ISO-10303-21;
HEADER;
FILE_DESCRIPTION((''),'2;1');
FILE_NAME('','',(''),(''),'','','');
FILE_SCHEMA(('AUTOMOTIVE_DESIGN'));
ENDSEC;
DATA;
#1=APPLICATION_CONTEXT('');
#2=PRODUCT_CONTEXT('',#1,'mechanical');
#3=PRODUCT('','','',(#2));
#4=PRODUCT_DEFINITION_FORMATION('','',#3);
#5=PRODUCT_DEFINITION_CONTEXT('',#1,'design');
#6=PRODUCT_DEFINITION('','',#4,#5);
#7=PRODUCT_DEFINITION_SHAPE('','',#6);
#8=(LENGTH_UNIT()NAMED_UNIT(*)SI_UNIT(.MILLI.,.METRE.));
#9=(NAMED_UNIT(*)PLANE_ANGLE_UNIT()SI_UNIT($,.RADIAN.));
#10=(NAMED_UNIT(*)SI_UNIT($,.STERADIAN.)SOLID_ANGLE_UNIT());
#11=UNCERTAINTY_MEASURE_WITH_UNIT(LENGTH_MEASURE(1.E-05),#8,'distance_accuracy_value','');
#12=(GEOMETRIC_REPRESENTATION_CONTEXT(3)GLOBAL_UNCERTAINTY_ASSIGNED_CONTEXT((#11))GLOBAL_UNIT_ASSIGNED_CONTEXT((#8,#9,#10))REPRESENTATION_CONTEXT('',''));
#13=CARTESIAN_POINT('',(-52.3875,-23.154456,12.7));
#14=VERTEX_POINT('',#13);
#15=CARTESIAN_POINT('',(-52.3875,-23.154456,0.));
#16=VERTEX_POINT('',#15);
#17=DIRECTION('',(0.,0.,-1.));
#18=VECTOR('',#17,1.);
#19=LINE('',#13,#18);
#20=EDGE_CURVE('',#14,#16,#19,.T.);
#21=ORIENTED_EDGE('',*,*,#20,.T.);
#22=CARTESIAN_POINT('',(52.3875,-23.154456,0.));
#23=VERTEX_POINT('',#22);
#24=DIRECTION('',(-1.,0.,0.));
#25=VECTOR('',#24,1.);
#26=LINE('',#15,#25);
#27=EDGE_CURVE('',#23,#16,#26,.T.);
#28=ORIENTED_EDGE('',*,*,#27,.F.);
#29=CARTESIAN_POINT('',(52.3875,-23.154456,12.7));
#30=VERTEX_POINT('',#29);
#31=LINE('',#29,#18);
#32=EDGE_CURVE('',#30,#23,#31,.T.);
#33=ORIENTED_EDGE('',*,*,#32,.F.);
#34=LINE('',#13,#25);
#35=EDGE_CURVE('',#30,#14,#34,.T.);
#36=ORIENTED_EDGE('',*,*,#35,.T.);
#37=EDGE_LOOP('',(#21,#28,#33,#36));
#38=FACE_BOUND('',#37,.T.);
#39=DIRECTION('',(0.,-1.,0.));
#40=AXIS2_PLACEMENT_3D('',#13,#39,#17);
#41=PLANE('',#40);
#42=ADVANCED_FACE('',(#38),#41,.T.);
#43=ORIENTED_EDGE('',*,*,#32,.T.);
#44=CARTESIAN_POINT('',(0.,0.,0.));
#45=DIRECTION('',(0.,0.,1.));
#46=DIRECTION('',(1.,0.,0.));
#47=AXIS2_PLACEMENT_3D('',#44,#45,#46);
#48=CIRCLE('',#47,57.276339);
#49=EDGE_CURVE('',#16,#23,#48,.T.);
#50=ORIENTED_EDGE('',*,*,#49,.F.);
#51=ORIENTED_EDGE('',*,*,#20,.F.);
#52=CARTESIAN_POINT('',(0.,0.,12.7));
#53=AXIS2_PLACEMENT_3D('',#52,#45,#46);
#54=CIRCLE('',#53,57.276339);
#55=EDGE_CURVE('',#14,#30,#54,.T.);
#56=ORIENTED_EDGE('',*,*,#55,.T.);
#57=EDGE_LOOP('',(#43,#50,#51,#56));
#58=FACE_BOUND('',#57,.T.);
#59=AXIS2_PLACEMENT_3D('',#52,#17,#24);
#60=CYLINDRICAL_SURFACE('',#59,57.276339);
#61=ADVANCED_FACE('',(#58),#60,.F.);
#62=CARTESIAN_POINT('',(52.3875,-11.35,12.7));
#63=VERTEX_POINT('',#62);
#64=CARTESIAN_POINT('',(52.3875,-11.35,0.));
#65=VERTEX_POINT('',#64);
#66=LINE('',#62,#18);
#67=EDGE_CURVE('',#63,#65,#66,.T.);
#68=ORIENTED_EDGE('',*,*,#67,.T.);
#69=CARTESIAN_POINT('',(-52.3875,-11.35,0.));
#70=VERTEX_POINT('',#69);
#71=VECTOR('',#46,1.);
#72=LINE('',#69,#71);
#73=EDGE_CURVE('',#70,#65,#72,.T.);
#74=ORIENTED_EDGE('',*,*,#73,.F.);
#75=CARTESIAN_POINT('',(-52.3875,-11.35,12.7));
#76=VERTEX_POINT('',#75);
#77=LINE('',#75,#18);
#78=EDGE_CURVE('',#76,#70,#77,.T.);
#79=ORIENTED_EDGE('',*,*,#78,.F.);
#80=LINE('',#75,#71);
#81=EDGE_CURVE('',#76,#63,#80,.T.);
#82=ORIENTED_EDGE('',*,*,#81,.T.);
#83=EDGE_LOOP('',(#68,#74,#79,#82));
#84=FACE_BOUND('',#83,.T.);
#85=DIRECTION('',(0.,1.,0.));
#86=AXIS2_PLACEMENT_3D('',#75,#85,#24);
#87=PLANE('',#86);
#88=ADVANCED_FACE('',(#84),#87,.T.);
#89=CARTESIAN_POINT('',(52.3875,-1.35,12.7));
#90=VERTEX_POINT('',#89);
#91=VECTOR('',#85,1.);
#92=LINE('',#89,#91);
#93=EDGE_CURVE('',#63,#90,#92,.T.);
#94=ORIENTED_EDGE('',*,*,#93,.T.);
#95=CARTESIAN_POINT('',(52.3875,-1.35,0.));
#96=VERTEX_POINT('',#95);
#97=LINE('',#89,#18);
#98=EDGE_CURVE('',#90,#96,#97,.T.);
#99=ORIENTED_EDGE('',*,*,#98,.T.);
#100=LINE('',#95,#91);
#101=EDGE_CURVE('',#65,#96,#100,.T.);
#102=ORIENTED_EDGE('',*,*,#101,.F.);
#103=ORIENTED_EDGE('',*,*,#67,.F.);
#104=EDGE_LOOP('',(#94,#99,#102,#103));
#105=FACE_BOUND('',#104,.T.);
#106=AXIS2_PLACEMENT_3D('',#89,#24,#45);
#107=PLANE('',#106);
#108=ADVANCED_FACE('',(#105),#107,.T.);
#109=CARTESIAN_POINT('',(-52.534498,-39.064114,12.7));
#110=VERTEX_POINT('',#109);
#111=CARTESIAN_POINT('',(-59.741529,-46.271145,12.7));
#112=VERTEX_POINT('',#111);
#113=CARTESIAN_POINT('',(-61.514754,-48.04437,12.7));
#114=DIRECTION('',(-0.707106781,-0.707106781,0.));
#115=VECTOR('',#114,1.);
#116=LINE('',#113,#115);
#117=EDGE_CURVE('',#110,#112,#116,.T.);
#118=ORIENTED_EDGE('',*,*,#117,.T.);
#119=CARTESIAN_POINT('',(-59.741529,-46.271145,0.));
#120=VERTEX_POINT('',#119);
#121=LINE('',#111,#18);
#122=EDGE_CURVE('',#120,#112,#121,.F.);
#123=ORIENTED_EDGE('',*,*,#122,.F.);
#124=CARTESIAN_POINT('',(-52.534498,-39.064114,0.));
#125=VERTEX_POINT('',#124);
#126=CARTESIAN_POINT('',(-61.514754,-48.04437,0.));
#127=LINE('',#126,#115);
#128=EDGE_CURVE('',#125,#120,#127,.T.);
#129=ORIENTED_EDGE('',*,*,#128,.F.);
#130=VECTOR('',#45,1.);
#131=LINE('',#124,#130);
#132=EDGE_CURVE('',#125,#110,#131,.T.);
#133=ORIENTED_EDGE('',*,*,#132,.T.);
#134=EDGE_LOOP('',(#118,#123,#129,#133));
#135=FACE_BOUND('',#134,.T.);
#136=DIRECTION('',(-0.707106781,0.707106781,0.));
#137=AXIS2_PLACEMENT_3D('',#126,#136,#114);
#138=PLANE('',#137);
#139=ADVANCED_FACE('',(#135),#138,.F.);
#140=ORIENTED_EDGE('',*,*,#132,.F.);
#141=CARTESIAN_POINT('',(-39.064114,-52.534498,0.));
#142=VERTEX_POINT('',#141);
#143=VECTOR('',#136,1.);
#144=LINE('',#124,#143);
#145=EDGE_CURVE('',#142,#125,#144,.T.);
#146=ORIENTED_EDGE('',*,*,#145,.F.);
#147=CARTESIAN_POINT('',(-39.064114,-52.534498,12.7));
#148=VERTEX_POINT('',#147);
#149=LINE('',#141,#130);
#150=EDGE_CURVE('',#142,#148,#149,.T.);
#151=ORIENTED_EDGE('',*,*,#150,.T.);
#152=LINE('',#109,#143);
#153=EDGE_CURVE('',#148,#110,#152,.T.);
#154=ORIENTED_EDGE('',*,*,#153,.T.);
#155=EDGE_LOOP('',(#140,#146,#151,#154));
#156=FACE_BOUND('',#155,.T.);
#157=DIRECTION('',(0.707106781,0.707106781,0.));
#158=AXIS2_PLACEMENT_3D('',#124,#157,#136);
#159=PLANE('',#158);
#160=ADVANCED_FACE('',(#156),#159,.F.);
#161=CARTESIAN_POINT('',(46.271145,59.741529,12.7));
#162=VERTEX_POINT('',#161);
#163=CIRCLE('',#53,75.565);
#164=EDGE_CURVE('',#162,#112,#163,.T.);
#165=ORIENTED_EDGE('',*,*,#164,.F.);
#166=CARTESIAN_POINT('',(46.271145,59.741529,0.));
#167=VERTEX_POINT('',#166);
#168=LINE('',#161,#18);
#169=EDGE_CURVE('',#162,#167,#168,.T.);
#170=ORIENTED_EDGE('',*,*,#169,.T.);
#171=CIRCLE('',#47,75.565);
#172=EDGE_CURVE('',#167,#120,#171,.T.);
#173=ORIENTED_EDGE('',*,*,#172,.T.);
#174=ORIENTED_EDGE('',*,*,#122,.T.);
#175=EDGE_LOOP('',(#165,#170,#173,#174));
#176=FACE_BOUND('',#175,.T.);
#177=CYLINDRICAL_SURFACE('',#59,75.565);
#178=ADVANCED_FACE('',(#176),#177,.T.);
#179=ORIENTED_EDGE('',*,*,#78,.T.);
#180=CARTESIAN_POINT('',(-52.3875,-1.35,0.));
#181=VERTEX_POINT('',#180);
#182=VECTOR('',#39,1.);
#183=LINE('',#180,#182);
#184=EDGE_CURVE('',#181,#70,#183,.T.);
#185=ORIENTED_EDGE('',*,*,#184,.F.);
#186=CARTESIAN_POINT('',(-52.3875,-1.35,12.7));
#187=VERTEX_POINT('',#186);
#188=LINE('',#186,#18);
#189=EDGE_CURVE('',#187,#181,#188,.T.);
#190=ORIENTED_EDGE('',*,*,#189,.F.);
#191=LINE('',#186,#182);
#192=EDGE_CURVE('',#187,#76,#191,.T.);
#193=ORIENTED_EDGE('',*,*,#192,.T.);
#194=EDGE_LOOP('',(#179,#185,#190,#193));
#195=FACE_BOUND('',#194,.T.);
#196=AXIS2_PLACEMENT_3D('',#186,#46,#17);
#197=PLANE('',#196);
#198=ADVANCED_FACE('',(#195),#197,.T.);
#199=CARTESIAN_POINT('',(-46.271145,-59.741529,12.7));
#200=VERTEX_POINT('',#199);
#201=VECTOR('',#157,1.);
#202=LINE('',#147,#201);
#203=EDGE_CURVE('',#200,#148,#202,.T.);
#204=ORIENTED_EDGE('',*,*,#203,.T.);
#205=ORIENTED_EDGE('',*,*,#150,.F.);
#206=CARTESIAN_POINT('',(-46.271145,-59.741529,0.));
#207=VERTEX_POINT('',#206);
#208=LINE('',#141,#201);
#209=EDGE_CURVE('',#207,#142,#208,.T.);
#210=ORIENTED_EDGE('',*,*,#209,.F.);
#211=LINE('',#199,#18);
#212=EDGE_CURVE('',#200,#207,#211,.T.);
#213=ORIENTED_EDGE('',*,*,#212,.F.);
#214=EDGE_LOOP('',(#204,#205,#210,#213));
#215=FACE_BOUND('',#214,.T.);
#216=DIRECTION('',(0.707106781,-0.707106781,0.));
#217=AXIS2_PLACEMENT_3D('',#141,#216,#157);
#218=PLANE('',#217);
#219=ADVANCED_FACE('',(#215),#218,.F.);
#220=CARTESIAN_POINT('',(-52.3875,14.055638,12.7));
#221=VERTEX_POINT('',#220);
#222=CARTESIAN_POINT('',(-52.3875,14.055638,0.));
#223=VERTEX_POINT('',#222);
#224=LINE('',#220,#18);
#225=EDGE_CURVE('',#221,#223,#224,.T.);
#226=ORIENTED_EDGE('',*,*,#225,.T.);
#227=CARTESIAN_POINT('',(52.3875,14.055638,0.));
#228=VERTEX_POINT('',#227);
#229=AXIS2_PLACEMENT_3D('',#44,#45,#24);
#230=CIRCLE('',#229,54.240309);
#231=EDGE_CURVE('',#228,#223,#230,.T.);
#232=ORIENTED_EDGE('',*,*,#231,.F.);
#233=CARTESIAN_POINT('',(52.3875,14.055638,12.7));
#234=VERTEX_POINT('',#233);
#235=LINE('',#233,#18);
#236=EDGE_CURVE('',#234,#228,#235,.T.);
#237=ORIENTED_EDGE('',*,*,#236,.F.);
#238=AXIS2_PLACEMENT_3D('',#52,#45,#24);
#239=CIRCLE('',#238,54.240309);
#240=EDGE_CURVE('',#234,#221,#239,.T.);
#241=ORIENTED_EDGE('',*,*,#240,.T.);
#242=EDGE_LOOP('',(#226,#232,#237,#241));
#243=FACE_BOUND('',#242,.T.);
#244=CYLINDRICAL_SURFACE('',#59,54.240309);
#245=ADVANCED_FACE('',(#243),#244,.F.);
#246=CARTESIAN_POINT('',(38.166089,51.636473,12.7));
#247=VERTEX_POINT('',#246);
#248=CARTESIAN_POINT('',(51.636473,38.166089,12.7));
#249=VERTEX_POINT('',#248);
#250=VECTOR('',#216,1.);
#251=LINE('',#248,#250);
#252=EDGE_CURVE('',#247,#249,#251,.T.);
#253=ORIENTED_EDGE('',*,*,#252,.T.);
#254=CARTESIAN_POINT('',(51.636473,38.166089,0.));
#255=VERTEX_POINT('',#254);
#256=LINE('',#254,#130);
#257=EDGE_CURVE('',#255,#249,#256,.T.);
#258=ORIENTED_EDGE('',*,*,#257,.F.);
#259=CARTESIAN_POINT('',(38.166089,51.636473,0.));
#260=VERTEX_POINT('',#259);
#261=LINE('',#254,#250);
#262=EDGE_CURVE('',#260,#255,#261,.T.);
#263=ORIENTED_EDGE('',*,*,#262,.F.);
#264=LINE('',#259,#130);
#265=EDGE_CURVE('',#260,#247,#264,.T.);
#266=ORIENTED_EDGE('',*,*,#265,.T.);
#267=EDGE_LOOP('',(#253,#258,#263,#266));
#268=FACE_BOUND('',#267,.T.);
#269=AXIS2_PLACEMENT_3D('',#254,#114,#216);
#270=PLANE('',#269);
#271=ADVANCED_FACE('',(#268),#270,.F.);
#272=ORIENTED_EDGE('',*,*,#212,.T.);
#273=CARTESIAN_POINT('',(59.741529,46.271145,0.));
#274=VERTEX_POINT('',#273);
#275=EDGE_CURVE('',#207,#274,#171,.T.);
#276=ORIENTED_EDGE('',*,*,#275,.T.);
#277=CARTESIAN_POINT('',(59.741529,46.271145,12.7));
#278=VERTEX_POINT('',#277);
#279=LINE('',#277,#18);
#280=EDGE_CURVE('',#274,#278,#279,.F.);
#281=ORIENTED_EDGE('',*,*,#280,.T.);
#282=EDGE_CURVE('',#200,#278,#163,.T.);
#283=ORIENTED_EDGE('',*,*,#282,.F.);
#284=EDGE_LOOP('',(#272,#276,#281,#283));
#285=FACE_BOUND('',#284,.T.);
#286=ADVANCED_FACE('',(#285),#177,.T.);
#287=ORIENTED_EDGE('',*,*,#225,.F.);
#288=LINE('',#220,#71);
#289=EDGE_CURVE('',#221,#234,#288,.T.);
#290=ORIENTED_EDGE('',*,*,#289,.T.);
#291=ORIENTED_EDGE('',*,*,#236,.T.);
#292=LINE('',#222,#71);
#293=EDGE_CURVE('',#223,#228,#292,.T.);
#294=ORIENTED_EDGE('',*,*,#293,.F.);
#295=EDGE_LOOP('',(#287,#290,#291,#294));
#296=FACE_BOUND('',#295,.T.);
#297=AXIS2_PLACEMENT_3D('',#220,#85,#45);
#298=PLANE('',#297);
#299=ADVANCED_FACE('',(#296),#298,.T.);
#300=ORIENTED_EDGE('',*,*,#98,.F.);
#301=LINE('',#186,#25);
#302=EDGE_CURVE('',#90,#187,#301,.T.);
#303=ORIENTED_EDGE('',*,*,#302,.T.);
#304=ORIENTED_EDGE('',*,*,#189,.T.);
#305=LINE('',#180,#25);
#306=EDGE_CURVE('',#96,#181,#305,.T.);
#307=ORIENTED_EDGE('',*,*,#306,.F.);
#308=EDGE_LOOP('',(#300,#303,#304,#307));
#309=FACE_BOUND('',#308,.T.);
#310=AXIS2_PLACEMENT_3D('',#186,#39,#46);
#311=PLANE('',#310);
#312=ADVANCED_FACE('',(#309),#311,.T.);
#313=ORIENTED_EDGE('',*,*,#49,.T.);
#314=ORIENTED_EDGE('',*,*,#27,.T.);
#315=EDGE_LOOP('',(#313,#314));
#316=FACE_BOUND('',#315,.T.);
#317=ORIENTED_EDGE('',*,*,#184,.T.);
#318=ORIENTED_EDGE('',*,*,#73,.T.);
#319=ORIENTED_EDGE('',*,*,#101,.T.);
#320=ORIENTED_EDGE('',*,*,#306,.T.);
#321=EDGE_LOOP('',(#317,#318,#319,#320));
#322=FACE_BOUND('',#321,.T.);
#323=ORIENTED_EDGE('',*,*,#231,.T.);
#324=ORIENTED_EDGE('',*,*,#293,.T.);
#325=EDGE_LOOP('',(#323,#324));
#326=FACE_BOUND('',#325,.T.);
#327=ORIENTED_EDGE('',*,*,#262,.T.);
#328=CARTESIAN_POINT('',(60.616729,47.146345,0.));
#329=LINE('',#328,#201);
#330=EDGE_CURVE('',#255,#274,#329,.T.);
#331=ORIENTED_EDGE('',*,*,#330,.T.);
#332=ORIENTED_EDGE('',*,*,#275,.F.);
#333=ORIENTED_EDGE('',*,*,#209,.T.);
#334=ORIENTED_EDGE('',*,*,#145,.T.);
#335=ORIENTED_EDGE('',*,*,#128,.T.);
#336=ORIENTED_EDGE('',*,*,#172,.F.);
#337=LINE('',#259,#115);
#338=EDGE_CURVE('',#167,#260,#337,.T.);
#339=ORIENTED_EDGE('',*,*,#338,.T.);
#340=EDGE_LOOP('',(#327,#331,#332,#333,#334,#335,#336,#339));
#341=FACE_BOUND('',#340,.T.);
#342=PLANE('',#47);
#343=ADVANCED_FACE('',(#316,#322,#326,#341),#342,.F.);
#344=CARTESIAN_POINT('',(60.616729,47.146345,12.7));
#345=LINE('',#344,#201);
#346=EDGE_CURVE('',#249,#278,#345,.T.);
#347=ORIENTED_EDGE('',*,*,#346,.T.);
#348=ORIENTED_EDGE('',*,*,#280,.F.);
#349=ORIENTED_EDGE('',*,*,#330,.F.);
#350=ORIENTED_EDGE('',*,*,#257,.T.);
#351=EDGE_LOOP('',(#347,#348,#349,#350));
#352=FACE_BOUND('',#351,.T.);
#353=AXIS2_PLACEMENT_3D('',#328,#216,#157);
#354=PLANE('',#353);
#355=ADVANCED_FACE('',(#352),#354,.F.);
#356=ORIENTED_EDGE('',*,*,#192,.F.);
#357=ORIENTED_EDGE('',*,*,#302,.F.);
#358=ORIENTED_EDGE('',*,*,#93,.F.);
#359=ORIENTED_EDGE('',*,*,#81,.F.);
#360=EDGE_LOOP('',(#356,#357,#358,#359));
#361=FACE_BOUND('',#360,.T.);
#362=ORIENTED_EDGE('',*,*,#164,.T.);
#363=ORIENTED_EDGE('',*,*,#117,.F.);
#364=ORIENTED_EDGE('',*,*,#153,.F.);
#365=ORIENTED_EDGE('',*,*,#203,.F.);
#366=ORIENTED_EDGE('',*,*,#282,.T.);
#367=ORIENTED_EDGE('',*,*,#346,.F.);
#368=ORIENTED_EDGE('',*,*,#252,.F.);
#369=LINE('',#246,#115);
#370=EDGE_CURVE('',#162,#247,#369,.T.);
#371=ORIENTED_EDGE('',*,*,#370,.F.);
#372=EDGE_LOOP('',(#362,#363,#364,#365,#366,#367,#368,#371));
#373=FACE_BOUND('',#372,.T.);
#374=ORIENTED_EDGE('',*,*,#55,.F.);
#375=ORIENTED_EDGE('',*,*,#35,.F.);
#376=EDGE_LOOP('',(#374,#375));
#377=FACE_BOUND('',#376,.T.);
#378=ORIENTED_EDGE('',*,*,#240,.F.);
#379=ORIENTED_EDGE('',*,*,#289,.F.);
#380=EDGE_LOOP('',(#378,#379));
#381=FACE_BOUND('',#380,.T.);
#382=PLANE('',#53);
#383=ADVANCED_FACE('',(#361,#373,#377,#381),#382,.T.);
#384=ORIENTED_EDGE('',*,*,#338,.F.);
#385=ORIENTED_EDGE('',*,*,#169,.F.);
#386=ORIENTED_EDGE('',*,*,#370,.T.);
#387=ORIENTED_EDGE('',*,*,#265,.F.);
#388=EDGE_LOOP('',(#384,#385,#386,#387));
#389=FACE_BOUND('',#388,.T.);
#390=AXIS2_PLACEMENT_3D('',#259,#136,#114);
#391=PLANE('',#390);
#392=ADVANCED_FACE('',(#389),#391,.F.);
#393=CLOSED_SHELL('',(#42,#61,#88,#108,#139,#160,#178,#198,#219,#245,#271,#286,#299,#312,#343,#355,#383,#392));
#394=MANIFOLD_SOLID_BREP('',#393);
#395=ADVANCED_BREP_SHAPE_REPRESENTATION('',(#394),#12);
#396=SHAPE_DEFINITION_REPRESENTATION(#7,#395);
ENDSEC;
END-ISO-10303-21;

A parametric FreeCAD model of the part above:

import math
import FreeCAD as App
import Part
import Sketcher
Q = App.Units.Quantity


def add_polygon(sketch, points):
    """Adds a closed chain of lines whose ends are joined by coincident constraints."""
    first, n = sketch.GeometryCount, len(points)
    for a, b in zip(points, points[1:] + points[:1]):
        sketch.addGeometry(Part.LineSegment(App.Vector(*a, 0), App.Vector(*b, 0)), False)
    for i in range(n):
        sketch.addConstraint(Sketcher.Constraint("Coincident", first + i, 2, first + (i + 1) % n, 1))

doc = App.newDocument("Part")
params = doc.addObject("Spreadsheet::Sheet", "Params")
for row, (alias, value) in enumerate([
    ("sketch1_diameter", "5.95 in"),
    ("sketch1_width", "4.125 in"),
    ("pad1_length", "0.5 in"),
    ("sketch2_length", "0.5 in"),
    ("sketch2_length2", "0.75 in"),
    ("pocket1_length", "0.5 in"),
], start=1):
    params.set(f"A{row}", alias)
    params.set(f"B{row}", "=" + value)
    params.setAlias(f"B{row}", alias)

body = doc.addObject("PartDesign::Body", "Body")

# Sketch on XY plane
sketch1 = doc.addObject("Sketcher::SketchObject", "Sketch")
body.addObject(sketch1)
sketch1.AttachmentSupport = (doc.XY_Plane, [""])
sketch1.MapMode = "FlatFace"
sketch1.addGeometry(Part.Circle(App.Vector(0, 0, 0), App.Vector(0, 0, 1), 76), False)  # 0
sketch1.addGeometry(Part.ArcOfCircle(Part.Circle(App.Vector(0, 0, 0), App.Vector(0, 0, 1), 57), math.radians(-156), math.radians(-24)), False)  # 1
sketch1.addGeometry(Part.LineSegment(App.Vector(-52, -23, 0), App.Vector(52, -23, 0)), False)  # 2
add_polygon(sketch1, [(52, -11), (-52, -11), (-52, -1), (52, -1)])  # lines 3-6
sketch1.addGeometry(Part.LineSegment(App.Vector(52, 14, 0), App.Vector(-52, 14, 0)), False)  # 7
sketch1.addGeometry(Part.ArcOfCircle(Part.Circle(App.Vector(0, 0, 0), App.Vector(0, 0, 1), 54), math.radians(15), math.radians(165)), False)  # 8
sketch1.addConstraint(Sketcher.Constraint("Coincident", 1, 1, 2, 1))
sketch1.addConstraint(Sketcher.Constraint("Coincident", 2, 2, 1, 2))
sketch1.addConstraint(Sketcher.Constraint("Coincident", 7, 1, 8, 1))
sketch1.addConstraint(Sketcher.Constraint("Coincident", 8, 2, 7, 2))
sketch1.addConstraint(Sketcher.Constraint("Horizontal", 2))
sketch1.addConstraint(Sketcher.Constraint("Horizontal", 3))
sketch1.addConstraint(Sketcher.Constraint("Vertical", 4))
sketch1.addConstraint(Sketcher.Constraint("Horizontal", 5))
sketch1.addConstraint(Sketcher.Constraint("Vertical", 6))
sketch1.addConstraint(Sketcher.Constraint("Horizontal", 7))
sketch1.addConstraint(Sketcher.Constraint("Coincident", 0, 3, -1, 1))
sketch1.addConstraint(Sketcher.Constraint("Coincident", 1, 3, -1, 1))
sketch1.addConstraint(Sketcher.Constraint("Coincident", 8, 3, -1, 1))
sketch1.addConstraint(Sketcher.Constraint("Vertical", 1, 1, 3, 2))
sketch1.addConstraint(Sketcher.Constraint("Vertical", 2, 2, 5, 2))
sketch1.addConstraint(Sketcher.Constraint("Vertical", 6, 2, 7, 1))
sketch1.addConstraint(Sketcher.Constraint("Diameter", 0, Q("5.95 in")))
sketch1.addConstraint(Sketcher.Constraint("DistanceX", 2, 1, 2, 2, Q("4.125 in")))
sketch1.addConstraint(Sketcher.Constraint("Radius", 1, 57.276339))
sketch1.addConstraint(Sketcher.Constraint("Radius", 8, 54.240309))
sketch1.addConstraint(Sketcher.Constraint("DistanceY", 4, 1, 4, 2, 10.0))
sketch1.addConstraint(Sketcher.Constraint("DistanceY", 3, 2, -1, 1, 11.35))
sketch1.setExpression("Constraints[20]", "Params.sketch1_diameter")
sketch1.setExpression("Constraints[21]", "Params.sketch1_width")
pad1 = doc.addObject("PartDesign::Pad", "Pad")
body.addObject(pad1)
pad1.Profile = sketch1
pad1.setExpression("Length", "Params.pad1_length")

# Sketch on XY plane
sketch2 = doc.addObject("Sketcher::SketchObject", "Sketch001")
body.addObject(sketch2)
sketch2.AttachmentSupport = (doc.XY_Plane, [""])
sketch2.MapMode = "FlatFace"
sketch2.AttachmentOffset = App.Placement(App.Vector(0, 0, 0.5 * 25.4), App.Rotation())
add_polygon(sketch2, [(61, 47), (47, 61), (38, 52), (52, 38)])  # lines 0-3
add_polygon(sketch2, [(-39, -53), (-53, -39), (-62, -48), (-48, -62)])  # lines 4-7
sketch2.addConstraint(Sketcher.Constraint("Perpendicular", 0, 1))
sketch2.addConstraint(Sketcher.Constraint("Perpendicular", 1, 2))
sketch2.addConstraint(Sketcher.Constraint("Perpendicular", 2, 3))
sketch2.addConstraint(Sketcher.Constraint("Perpendicular", 3, 4))
sketch2.addConstraint(Sketcher.Constraint("Perpendicular", 4, 5))
sketch2.addConstraint(Sketcher.Constraint("Perpendicular", 5, 6))
sketch2.addConstraint(Sketcher.Constraint("Perpendicular", 6, 7))
sketch2.addConstraint(Sketcher.Constraint("Equal", 2, 4))
sketch2.addConstraint(Sketcher.Constraint("Equal", 3, 5))
sketch2.addConstraint(Sketcher.Constraint("Angle", 0, Q("135 deg")))
sketch2.addConstraint(Sketcher.Constraint("Distance", 1, Q("0.5 in")))
sketch2.addConstraint(Sketcher.Constraint("Distance", 0, Q("0.75 in")))
sketch2.addConstraint(Sketcher.Constraint("DistanceX", 4, 2, -1, 1, 52.534498))
sketch2.addConstraint(Sketcher.Constraint("DistanceY", 7, 2, -1, 1, 52.534498))
sketch2.addConstraint(Sketcher.Constraint("DistanceX", 5, 2, 0, 2, 108.661099))
sketch2.addConstraint(Sketcher.Constraint("DistanceY", 5, 2, 0, 2, 108.661099))
sketch2.setExpression("Constraints[18]", "Params.sketch2_length")
sketch2.setExpression("Constraints[19]", "Params.sketch2_length2")
pocket1 = doc.addObject("PartDesign::Pocket", "Pocket")
body.addObject(pocket1)
pocket1.Profile = sketch2
pocket1.setExpression("Length", "Params.pocket1_length")

doc.recompute()
